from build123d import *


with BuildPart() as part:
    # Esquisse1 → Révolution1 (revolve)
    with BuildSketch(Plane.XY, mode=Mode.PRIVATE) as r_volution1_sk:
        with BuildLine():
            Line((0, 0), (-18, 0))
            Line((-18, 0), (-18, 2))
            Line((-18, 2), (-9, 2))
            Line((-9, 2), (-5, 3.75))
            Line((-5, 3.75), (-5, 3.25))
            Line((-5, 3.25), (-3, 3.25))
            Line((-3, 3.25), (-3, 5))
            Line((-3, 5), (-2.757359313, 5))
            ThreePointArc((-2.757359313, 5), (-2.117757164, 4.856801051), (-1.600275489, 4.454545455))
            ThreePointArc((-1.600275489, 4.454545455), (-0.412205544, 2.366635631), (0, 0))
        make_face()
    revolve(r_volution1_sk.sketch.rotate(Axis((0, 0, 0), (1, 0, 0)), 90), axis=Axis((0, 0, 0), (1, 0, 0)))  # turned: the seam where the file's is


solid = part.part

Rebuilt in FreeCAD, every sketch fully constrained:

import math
import FreeCAD as App
import Part
import Sketcher

V = App.Vector

doc = App.newDocument("Part")
body = doc.addObject("PartDesign::Body", "Body")

# Sketch on XY plane
sketch1 = body.newObject("Sketcher::SketchObject", "Sketch")
sketch1.AttachmentSupport = (doc.getObject("XY_Plane"), [""])
sketch1.MapMode = "FlatFace"
sketch1.addGeometry([
    Part.LineSegment(V(-18, 0, 0), V(0, 0, 0)),  # 0
    Part.ArcOfCircle(Part.Circle(V(-7, 0, 0), V(0, 0, 1), 7), math.radians(0), math.radians(40)),  # 1
    Part.ArcOfCircle(Part.Circle(V(-2.76, 3.5, 0), V(0, 0, 1), 1.5), math.radians(40), math.radians(90)),  # 2
    Part.LineSegment(V(-2.76, 5, 0), V(-3, 5, 0)),  # 3
    Part.LineSegment(V(-3, 5, 0), V(-3, 3.25, 0)),  # 4
    Part.LineSegment(V(-3, 3.25, 0), V(-5, 3.25, 0)),  # 5
    Part.LineSegment(V(-5, 3.25, 0), V(-5, 3.75, 0)),  # 6
    Part.LineSegment(V(-5, 3.75, 0), V(-9, 2, 0)),  # 7
    Part.LineSegment(V(-9, 2, 0), V(-18, 2, 0)),  # 8
    Part.LineSegment(V(-18, 2, 0), V(-18, 0, 0)),  # 9
], False)
sketch1.addConstraint([
    Sketcher.Constraint("Coincident", 0, 2, 1, 1),
    Sketcher.Constraint("Tangent", 1, 2, 2, 1),
    Sketcher.Constraint("Tangent", 2, 2, 3, 1),
    Sketcher.Constraint("Coincident", 3, 2, 4, 1),
    Sketcher.Constraint("Coincident", 4, 2, 5, 1),
    Sketcher.Constraint("Coincident", 5, 2, 6, 1),
    Sketcher.Constraint("Coincident", 6, 2, 7, 1),
    Sketcher.Constraint("Coincident", 7, 2, 8, 1),
    Sketcher.Constraint("Coincident", 8, 2, 9, 1),
    Sketcher.Constraint("Coincident", 9, 2, 0, 1),
    Sketcher.Constraint("Horizontal", 0),
    Sketcher.Constraint("Horizontal", 3),
    Sketcher.Constraint("Vertical", 4),
    Sketcher.Constraint("Horizontal", 5),
    Sketcher.Constraint("Vertical", 6),
    Sketcher.Constraint("Horizontal", 8),
    Sketcher.Constraint("Vertical", 9),
    Sketcher.Constraint("Coincident", 0, 2, -1, 1),
    Sketcher.Constraint("PointOnObject", 1, 3, -1),
    Sketcher.Constraint("Equal", 5, 9),
    Sketcher.Constraint("Radius", 1, 7.0),
    Sketcher.Constraint("Radius", 2, 1.5),
    Sketcher.Constraint("DistanceX", 0, 1, 0, 2, 18.0),
    Sketcher.Constraint("DistanceX", 5, 2, 5, 1, 2.0),
    Sketcher.Constraint("DistanceX", 8, 2, 8, 1, 9.0),
    Sketcher.Constraint("DistanceY", 6, 1, 6, 2, 0.5),
    Sketcher.Constraint("DistanceY", -1, 1, 2, 2, 5.0),
    Sketcher.Constraint("DistanceX", 3, 2, -1, 1, 3.0),
    Sketcher.Constraint("DistanceY", 4, 2, 4, 1, 1.75),
])
revolution = body.newObject("PartDesign::Revolution", "Revolution")
revolution.Profile = sketch1
revolution.ReferenceAxis = (sketch1, ["H_Axis"])
revolution.Angle = 360

doc.recompute()
